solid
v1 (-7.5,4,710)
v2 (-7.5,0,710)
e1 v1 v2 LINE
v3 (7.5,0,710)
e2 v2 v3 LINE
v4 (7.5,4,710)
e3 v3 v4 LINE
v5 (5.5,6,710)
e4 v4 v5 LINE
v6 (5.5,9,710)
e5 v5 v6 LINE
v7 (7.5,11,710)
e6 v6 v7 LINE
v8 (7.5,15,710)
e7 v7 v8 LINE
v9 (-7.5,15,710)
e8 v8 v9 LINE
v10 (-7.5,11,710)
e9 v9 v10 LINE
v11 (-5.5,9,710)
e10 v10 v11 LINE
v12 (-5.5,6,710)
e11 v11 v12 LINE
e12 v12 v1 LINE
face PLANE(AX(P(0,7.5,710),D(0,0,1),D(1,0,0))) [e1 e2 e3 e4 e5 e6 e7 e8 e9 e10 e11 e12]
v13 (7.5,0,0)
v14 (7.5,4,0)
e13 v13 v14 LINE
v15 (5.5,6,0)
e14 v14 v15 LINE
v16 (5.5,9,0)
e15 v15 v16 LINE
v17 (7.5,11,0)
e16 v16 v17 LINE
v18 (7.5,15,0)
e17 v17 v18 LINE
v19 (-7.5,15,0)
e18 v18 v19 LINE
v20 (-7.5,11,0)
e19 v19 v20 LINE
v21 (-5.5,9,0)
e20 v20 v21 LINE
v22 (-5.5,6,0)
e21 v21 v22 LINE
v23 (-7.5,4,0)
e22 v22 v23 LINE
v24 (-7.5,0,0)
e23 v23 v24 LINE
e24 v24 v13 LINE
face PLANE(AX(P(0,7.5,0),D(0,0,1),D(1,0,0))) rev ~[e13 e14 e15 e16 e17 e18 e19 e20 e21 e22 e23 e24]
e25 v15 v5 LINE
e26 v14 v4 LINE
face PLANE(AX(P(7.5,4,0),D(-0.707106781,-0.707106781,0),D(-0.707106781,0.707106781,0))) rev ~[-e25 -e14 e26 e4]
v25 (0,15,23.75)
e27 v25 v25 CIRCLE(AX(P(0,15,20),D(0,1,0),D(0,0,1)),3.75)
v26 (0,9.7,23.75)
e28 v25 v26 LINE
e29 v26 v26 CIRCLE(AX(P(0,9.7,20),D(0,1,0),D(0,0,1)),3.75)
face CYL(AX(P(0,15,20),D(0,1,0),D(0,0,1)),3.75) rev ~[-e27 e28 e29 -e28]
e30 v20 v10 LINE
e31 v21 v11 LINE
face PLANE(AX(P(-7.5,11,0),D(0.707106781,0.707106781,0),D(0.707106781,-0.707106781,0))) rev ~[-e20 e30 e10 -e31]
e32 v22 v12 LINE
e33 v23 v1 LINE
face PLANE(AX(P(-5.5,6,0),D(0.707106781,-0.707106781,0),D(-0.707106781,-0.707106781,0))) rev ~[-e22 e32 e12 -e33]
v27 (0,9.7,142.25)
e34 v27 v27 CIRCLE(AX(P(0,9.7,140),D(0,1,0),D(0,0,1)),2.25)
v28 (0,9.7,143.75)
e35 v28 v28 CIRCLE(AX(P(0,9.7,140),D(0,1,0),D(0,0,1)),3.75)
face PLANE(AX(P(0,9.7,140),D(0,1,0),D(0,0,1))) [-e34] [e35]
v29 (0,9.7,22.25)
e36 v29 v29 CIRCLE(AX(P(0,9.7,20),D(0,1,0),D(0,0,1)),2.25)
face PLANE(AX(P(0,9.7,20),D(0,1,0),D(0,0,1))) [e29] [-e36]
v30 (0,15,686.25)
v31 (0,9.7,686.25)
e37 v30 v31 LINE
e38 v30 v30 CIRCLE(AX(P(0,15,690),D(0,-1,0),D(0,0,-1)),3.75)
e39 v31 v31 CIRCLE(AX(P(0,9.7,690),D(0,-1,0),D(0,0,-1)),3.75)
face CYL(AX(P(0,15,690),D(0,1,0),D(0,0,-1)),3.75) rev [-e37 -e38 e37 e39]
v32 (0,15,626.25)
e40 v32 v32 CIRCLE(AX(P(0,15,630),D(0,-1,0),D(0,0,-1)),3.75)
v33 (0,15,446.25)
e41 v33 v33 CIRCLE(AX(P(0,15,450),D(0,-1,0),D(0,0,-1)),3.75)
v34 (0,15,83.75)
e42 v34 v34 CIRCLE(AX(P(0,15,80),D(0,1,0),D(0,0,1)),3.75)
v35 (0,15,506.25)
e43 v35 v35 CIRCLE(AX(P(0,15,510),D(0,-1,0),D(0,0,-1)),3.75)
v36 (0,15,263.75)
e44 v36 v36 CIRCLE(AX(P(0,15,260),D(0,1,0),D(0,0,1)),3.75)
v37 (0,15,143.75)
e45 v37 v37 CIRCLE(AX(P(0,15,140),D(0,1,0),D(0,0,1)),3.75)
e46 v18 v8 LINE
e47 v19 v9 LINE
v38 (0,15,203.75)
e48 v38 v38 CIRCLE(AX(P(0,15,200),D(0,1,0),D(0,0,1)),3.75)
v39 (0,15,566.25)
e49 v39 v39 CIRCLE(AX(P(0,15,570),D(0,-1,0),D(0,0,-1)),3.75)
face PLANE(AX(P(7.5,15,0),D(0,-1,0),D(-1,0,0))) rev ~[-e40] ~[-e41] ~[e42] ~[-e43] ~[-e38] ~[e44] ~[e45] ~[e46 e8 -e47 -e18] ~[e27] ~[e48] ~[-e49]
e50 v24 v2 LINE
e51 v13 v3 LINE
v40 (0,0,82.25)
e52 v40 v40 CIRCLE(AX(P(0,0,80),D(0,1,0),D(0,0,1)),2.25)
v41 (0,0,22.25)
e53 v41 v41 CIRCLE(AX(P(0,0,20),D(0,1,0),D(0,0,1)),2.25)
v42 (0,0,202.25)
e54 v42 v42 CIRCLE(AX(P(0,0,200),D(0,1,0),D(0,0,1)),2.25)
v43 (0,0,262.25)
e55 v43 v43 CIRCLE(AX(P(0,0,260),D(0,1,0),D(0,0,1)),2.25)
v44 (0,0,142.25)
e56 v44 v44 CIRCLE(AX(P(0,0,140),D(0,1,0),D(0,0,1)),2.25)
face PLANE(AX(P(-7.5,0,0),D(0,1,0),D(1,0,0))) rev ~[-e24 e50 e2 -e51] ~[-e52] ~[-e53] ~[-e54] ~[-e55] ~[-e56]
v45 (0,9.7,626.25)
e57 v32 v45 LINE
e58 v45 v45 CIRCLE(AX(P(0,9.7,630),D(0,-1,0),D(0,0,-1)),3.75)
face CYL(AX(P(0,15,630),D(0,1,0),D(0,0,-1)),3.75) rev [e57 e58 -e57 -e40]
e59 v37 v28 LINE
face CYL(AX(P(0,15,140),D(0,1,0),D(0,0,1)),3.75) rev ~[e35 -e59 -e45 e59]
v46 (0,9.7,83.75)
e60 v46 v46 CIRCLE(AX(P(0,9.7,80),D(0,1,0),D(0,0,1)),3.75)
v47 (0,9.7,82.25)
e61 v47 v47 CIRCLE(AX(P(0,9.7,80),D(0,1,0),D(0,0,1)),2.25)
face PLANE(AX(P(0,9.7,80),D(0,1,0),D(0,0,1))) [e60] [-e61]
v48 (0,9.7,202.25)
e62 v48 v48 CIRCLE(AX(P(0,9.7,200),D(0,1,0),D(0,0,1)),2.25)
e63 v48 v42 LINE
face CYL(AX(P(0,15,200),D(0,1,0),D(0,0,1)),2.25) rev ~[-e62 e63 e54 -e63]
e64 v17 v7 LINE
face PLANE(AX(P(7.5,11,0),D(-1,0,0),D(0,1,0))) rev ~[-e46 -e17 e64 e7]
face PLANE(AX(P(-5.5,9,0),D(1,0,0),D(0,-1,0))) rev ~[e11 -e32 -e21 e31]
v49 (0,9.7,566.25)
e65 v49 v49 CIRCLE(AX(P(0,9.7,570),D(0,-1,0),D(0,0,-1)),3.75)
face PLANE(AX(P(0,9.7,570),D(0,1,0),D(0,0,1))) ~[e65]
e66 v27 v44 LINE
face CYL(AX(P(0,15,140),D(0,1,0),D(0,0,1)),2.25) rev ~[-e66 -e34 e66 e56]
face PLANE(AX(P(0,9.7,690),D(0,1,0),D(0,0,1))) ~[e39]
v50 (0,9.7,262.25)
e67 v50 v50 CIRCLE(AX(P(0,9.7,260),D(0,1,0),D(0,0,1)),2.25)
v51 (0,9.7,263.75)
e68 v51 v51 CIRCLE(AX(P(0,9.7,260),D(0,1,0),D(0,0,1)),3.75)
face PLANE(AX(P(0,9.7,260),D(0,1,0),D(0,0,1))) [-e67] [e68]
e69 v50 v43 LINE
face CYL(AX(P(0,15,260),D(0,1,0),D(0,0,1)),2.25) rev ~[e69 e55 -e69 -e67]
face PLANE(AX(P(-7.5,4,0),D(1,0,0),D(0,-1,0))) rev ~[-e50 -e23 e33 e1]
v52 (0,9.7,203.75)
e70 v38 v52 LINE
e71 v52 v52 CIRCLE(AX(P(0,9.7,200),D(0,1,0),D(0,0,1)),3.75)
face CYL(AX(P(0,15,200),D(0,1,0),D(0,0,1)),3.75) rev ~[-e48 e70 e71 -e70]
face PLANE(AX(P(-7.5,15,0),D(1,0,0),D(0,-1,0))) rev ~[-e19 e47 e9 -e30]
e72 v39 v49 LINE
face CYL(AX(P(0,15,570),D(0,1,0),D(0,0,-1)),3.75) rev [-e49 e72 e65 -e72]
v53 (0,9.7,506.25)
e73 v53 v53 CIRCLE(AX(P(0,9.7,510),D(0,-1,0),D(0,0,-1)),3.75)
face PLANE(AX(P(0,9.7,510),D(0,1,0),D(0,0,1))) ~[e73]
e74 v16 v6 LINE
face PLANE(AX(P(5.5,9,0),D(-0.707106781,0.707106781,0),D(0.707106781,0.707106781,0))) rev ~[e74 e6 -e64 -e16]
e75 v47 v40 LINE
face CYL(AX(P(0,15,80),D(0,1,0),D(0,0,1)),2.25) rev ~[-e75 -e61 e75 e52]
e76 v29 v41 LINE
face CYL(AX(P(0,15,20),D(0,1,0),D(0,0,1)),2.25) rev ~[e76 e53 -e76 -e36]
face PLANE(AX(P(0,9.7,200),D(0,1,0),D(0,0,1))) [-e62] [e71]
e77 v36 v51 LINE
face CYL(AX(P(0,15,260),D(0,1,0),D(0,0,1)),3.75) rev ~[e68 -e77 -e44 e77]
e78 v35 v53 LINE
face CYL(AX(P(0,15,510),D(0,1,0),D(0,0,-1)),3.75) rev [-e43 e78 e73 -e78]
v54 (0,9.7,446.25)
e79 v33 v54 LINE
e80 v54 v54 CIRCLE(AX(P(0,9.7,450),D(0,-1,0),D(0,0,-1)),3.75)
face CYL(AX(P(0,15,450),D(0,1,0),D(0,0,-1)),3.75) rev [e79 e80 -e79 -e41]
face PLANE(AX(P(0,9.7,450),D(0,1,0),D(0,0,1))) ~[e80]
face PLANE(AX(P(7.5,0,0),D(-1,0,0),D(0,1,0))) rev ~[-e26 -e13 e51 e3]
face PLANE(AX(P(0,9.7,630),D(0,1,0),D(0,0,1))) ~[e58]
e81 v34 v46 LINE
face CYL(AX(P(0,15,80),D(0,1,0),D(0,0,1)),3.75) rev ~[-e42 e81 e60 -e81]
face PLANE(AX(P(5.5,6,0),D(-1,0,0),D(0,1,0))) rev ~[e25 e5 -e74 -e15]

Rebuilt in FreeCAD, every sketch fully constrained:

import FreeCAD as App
import Part
import Sketcher

V = App.Vector

doc = App.newDocument("Part")
body = doc.addObject("PartDesign::Body", "Body")

# Sketch on XY plane
sketch1 = body.newObject("Sketcher::SketchObject", "Sketch")
sketch1.AttachmentSupport = (doc.getObject("XY_Plane"), [""])
sketch1.MapMode = "FlatFace"
sketch1.addGeometry([
    Part.LineSegment(V(-7.5, 0, 0), V(7.5, 0, 0)),  # 0
    Part.LineSegment(V(7.5, 0, 0), V(7.5, 4, 0)),  # 1
    Part.LineSegment(V(7.5, 4, 0), V(5.5, 6, 0)),  # 2
    Part.LineSegment(V(5.5, 6, 0), V(5.5, 9, 0)),  # 3
    Part.LineSegment(V(5.5, 9, 0), V(7.5, 11, 0)),  # 4
    Part.LineSegment(V(7.5, 11, 0), V(7.5, 15, 0)),  # 5
    Part.LineSegment(V(7.5, 15, 0), V(-7.5, 15, 0)),  # 6
    Part.LineSegment(V(-7.5, 15, 0), V(-7.5, 11, 0)),  # 7
    Part.LineSegment(V(-7.5, 11, 0), V(-5.5, 9, 0)),  # 8
    Part.LineSegment(V(-5.5, 9, 0), V(-5.5, 6, 0)),  # 9
    Part.LineSegment(V(-5.5, 6, 0), V(-7.5, 4, 0)),  # 10
    Part.LineSegment(V(-7.5, 4, 0), V(-7.5, 0, 0)),  # 11
], False)
sketch1.addConstraint([
    Sketcher.Constraint("Coincident", 0, 2, 1, 1),
    Sketcher.Constraint("Coincident", 1, 2, 2, 1),
    Sketcher.Constraint("Coincident", 2, 2, 3, 1),
    Sketcher.Constraint("Coincident", 3, 2, 4, 1),
    Sketcher.Constraint("Coincident", 4, 2, 5, 1),
    Sketcher.Constraint("Coincident", 5, 2, 6, 1),
    Sketcher.Constraint("Coincident", 6, 2, 7, 1),
    Sketcher.Constraint("Coincident", 7, 2, 8, 1),
    Sketcher.Constraint("Coincident", 8, 2, 9, 1),
    Sketcher.Constraint("Coincident", 9, 2, 10, 1),
    Sketcher.Constraint("Coincident", 10, 2, 11, 1),
    Sketcher.Constraint("Coincident", 11, 2, 0, 1),
    Sketcher.Constraint("Horizontal", 0),
    Sketcher.Constraint("Vertical", 1),
    Sketcher.Constraint("Vertical", 3),
    Sketcher.Constraint("Vertical", 5),
    Sketcher.Constraint("Horizontal", 6),
    Sketcher.Constraint("Vertical", 7),
    Sketcher.Constraint("Vertical", 9),
    Sketcher.Constraint("Vertical", 11),
    Sketcher.Constraint("Symmetric", 0, 2, 11, 2, -1, 1),
    Sketcher.Constraint("Symmetric", 4, 2, 7, 2, -2),
    Sketcher.Constraint("Symmetric", 3, 2, 8, 2, -2),
    Sketcher.Constraint("Perpendicular", 2, 4),
    Sketcher.Constraint("Perpendicular", 4, 8),
    Sketcher.Constraint("Perpendicular", 8, 10),
    Sketcher.Constraint("Horizontal", 2, 2, 9, 2),
    Sketcher.Constraint("Vertical", 1, 2, 4, 2),
    Sketcher.Constraint("Equal", 1, 5),
    Sketcher.Constraint("DistanceX", 0, 1, 0, 2, 15.0),
    Sketcher.Constraint("DistanceY", 1, 1, 1, 2, 4.0),
    Sketcher.Constraint("DistanceY", 3, 1, 3, 2, 3.0),
    Sketcher.Constraint("DistanceY", -1, 1, 2, 2, 6.0),
])
pad1 = body.newObject("PartDesign::Pad", "Pad")
pad1.Profile = sketch1
pad1.Length = 710

# Sketch on XZ plane
sketch2 = body.newObject("Sketcher::SketchObject", "Sketch001")
sketch2.AttachmentSupport = (doc.getObject("XZ_Plane"), [""])
sketch2.MapMode = "FlatFace"
sketch2.AttachmentOffset = App.Placement(V(0, 0, -15), App.Rotation())
sketch2.addGeometry([
    Part.Circle(V(0, 20, 0), V(0, 0, 1), 3.75),  # 0
    Part.Circle(V(0, 80, 0), V(0, 0, 1), 3.75),  # 1
    Part.Circle(V(0, 140, 0), V(0, 0, 1), 3.75),  # 2
    Part.Circle(V(0, 200, 0), V(0, 0, 1), 3.75),  # 3
    Part.Circle(V(0, 260, 0), V(0, 0, 1), 3.75),  # 4
], False)
sketch2.addConstraint([
    Sketcher.Constraint("Equal", 0, 1),
    Sketcher.Constraint("Equal", 1, 2),
    Sketcher.Constraint("Equal", 2, 3),
    Sketcher.Constraint("Equal", 3, 4),
    Sketcher.Constraint("PointOnObject", 0, 3, -2),
    Sketcher.Constraint("PointOnObject", 1, 3, -2),
    Sketcher.Constraint("PointOnObject", 2, 3, -2),
    Sketcher.Constraint("PointOnObject", 3, 3, -2),
    Sketcher.Constraint("PointOnObject", 4, 3, -2),
    Sketcher.Constraint("Diameter", 0, 7.5),
    Sketcher.Constraint("DistanceY", -1, 1, 0, 3, 20.0),
    Sketcher.Constraint("DistanceY", -1, 1, 1, 3, 80.0),
    Sketcher.Constraint("DistanceY", -1, 1, 2, 3, 140.0),
    Sketcher.Constraint("DistanceY", -1, 1, 3, 3, 200.0),
    Sketcher.Constraint("DistanceY", -1, 1, 4, 3, 260.0),
])
pocket1 = body.newObject("PartDesign::Pocket", "Pocket")
pocket1.Profile = sketch2
pocket1.Length = 5.3
pocket1.Reversed = True

# Sketch on XZ plane
sketch3 = body.newObject("Sketcher::SketchObject", "Sketch002")
sketch3.AttachmentSupport = (doc.getObject("XZ_Plane"), [""])
sketch3.MapMode = "FlatFace"
sketch3.AttachmentOffset = App.Placement(V(0, 0, -15), App.Rotation())
sketch3.addGeometry([
    Part.Circle(V(0, 20, 0), V(0, 0, 1), 2.25),  # 0
    Part.Circle(V(0, 80, 0), V(0, 0, 1), 2.25),  # 1
    Part.Circle(V(0, 140, 0), V(0, 0, 1), 2.25),  # 2
    Part.Circle(V(0, 200, 0), V(0, 0, 1), 2.25),  # 3
    Part.Circle(V(0, 260, 0), V(0, 0, 1), 2.25),  # 4
], False)
sketch3.addConstraint([
    Sketcher.Constraint("Equal", 0, 1),
    Sketcher.Constraint("Equal", 1, 2),
    Sketcher.Constraint("Equal", 2, 3),
    Sketcher.Constraint("Equal", 3, 4),
    Sketcher.Constraint("PointOnObject", 0, 3, -2),
    Sketcher.Constraint("PointOnObject", 1, 3, -2),
    Sketcher.Constraint("PointOnObject", 2, 3, -2),
    Sketcher.Constraint("PointOnObject", 3, 3, -2),
    Sketcher.Constraint("PointOnObject", 4, 3, -2),
    Sketcher.Constraint("Diameter", 0, 4.5),
    Sketcher.Constraint("DistanceY", -1, 1, 0, 3, 20.0),
    Sketcher.Constraint("DistanceY", -1, 1, 1, 3, 80.0),
    Sketcher.Constraint("DistanceY", -1, 1, 2, 3, 140.0),
    Sketcher.Constraint("DistanceY", -1, 1, 3, 3, 200.0),
    Sketcher.Constraint("DistanceY", -1, 1, 4, 3, 260.0),
])
pocket2 = body.newObject("PartDesign::Pocket", "Pocket001")
pocket2.Profile = sketch3
pocket2.Type = "ThroughAll"
pocket2.Reversed = True
doc.recompute()

datumplane = body.newObject("PartDesign::Plane", "DatumPlane")
datumplane.AttachmentSupport = (doc.getObject("XY_Plane"), [""])
datumplane.MapMode = "FlatFace"
datumplane.AttachmentOffset = App.Placement(V(0, 0, 355), App.Rotation())
mirrored = body.newObject("PartDesign::Mirrored", "Mirrored")
mirrored.Originals = [pocket1]
mirrored.MirrorPlane = (datumplane, [""])
body.Tip = mirrored

doc.recompute()
